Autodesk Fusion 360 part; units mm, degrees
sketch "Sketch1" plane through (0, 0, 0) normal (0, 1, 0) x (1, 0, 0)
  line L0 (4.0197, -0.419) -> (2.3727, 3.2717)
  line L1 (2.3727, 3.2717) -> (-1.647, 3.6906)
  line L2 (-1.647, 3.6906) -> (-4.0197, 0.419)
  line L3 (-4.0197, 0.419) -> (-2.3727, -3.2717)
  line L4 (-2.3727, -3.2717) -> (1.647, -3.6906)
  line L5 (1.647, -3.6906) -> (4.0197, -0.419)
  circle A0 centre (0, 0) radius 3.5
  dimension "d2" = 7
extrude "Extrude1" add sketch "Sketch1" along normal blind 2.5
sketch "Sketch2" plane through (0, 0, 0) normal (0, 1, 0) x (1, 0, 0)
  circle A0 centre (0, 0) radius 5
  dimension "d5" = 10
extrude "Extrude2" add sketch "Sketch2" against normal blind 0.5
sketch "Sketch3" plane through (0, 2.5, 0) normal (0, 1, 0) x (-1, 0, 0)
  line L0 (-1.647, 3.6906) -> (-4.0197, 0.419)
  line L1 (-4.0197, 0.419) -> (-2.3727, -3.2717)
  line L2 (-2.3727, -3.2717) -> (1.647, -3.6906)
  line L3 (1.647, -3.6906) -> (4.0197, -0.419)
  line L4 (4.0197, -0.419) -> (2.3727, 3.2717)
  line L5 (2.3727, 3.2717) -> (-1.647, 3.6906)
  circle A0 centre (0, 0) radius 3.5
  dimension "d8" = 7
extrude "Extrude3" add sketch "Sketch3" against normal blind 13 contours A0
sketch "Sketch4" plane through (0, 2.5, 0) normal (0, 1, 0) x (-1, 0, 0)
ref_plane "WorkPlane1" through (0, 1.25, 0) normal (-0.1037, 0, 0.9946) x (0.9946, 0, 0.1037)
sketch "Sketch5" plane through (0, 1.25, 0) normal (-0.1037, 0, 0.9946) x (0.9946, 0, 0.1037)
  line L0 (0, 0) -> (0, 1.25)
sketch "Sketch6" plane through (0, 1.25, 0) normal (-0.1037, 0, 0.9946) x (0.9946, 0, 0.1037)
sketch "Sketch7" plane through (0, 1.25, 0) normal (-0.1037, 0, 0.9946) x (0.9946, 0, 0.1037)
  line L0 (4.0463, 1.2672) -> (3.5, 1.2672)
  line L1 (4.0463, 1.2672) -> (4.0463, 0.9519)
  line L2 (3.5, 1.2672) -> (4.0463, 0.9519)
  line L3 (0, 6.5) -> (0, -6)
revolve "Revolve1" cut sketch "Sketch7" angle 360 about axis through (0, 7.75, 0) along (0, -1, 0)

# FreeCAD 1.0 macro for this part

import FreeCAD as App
import Part
import Sketcher
Q = App.Units.Quantity


def add_polygon(sketch, points):
    """Adds a closed chain of lines whose ends are joined by coincident constraints."""
    first, n = sketch.GeometryCount, len(points)
    for a, b in zip(points, points[1:] + points[:1]):
        sketch.addGeometry(Part.LineSegment(App.Vector(*a, 0), App.Vector(*b, 0)), False)
    for i in range(n):
        sketch.addConstraint(Sketcher.Constraint("Coincident", first + i, 2, first + (i + 1) % n, 1))

doc = App.newDocument("Part")
body = doc.addObject("PartDesign::Body", "Body")

# Sketch on XZ plane
sketch1 = body.newObject("Sketcher::SketchObject", "Sketch")
sketch1.AttachmentSupport = (doc.getObject("XZ_Plane"), [""])
sketch1.MapMode = "FlatFace"
add_polygon(sketch1, [(4, 0.4), (2.4, -3.3), (-1.6, -3.7), (-4, -0.4), (-2.4, 3.3), (1.6, 3.7)])  # lines 0-5
sketch1.addConstraint([
    Sketcher.Constraint("Symmetric", 0, 2, 3, 2, -1, 1),
    Sketcher.Constraint("Symmetric", 1, 2, 4, 2, -1, 1),
    Sketcher.Constraint("Symmetric", 2, 2, 5, 2, -1, 1),
    Sketcher.Constraint("Equal", 0, 1),
    Sketcher.Constraint("Equal", 1, 2),
    Sketcher.Constraint("Angle", 0, Q("-114.0491 deg")),
    Sketcher.Constraint("Angle", 1, Q("-174.0506 deg")),
    Sketcher.Constraint("Angle", 2, Q("125.9512 deg")),
    Sketcher.Constraint("DistanceX", 1, 2, -1, 1, 1.647),
])
pad1 = body.newObject("PartDesign::Pad", "Pad")
pad1.Profile = sketch1
pad1.Length = 2.5
pad1.Reversed = True

# Sketch on XZ plane
sketch2 = body.newObject("Sketcher::SketchObject", "Sketch001")
sketch2.AttachmentSupport = (doc.getObject("XZ_Plane"), [""])
sketch2.MapMode = "FlatFace"
sketch2.addGeometry(Part.Circle(App.Vector(0, 0, 0), App.Vector(0, 0, 1), 5), False)
sketch2.addConstraint([
    Sketcher.Constraint("Coincident", 0, 3, -1, 1),
    Sketcher.Constraint("Diameter", 0, 10.0),
])
pad2 = body.newObject("PartDesign::Pad", "Pad001")
pad2.Profile = sketch2
pad2.Length = 0.5

# Sketch on XZ plane
sketch3 = body.newObject("Sketcher::SketchObject", "Sketch002")
sketch3.AttachmentSupport = (doc.getObject("XZ_Plane"), [""])
sketch3.MapMode = "FlatFace"
sketch3.AttachmentOffset = App.Placement(App.Vector(0, 0, -2.5), App.Rotation())
sketch3.addGeometry(Part.Circle(App.Vector(0, 0, 0), App.Vector(0, 0, 1), 3.5), False)
sketch3.addConstraint([
    Sketcher.Constraint("Coincident", 0, 3, -1, 1),
    Sketcher.Constraint("Diameter", 0, 7.0),
])
pad3 = body.newObject("PartDesign::Pad", "Pad002")
pad3.Profile = sketch3
pad3.Length = 13

# Sketch on an angled plane
sketch4 = body.newObject("Sketcher::SketchObject", "Sketch003")
sketch4.Placement = App.Placement(App.Vector(0, 1.25, 0), App.Rotation(App.Vector(0.994608529, 0, 0.103700889), App.Vector(0, 1, 0), App.Vector(-0.103700889, 0, 0.994608529), "ZXY"))
add_polygon(sketch4, [(4.05, 0.95), (4.05, 1.27), (3.5, 1.27)])  # lines 0-2
sketch4.addConstraint([
    Sketcher.Constraint("Vertical", 0),
    Sketcher.Constraint("Horizontal", 1),
    Sketcher.Constraint("DistanceX", -1, 1, 1, 2, 3.5),
    Sketcher.Constraint("DistanceX", 1, 2, 1, 1, 0.5463),
    Sketcher.Constraint("DistanceY", 0, 1, 0, 2, 0.3153),
    Sketcher.Constraint("DistanceY", -1, 1, 2, 2, 0.952),
])
groove = body.newObject("PartDesign::Groove", "Groove")
groove.Profile = sketch4
groove.ReferenceAxis = (sketch4, ["V_Axis"])
groove.Angle = 360

doc.recompute()
